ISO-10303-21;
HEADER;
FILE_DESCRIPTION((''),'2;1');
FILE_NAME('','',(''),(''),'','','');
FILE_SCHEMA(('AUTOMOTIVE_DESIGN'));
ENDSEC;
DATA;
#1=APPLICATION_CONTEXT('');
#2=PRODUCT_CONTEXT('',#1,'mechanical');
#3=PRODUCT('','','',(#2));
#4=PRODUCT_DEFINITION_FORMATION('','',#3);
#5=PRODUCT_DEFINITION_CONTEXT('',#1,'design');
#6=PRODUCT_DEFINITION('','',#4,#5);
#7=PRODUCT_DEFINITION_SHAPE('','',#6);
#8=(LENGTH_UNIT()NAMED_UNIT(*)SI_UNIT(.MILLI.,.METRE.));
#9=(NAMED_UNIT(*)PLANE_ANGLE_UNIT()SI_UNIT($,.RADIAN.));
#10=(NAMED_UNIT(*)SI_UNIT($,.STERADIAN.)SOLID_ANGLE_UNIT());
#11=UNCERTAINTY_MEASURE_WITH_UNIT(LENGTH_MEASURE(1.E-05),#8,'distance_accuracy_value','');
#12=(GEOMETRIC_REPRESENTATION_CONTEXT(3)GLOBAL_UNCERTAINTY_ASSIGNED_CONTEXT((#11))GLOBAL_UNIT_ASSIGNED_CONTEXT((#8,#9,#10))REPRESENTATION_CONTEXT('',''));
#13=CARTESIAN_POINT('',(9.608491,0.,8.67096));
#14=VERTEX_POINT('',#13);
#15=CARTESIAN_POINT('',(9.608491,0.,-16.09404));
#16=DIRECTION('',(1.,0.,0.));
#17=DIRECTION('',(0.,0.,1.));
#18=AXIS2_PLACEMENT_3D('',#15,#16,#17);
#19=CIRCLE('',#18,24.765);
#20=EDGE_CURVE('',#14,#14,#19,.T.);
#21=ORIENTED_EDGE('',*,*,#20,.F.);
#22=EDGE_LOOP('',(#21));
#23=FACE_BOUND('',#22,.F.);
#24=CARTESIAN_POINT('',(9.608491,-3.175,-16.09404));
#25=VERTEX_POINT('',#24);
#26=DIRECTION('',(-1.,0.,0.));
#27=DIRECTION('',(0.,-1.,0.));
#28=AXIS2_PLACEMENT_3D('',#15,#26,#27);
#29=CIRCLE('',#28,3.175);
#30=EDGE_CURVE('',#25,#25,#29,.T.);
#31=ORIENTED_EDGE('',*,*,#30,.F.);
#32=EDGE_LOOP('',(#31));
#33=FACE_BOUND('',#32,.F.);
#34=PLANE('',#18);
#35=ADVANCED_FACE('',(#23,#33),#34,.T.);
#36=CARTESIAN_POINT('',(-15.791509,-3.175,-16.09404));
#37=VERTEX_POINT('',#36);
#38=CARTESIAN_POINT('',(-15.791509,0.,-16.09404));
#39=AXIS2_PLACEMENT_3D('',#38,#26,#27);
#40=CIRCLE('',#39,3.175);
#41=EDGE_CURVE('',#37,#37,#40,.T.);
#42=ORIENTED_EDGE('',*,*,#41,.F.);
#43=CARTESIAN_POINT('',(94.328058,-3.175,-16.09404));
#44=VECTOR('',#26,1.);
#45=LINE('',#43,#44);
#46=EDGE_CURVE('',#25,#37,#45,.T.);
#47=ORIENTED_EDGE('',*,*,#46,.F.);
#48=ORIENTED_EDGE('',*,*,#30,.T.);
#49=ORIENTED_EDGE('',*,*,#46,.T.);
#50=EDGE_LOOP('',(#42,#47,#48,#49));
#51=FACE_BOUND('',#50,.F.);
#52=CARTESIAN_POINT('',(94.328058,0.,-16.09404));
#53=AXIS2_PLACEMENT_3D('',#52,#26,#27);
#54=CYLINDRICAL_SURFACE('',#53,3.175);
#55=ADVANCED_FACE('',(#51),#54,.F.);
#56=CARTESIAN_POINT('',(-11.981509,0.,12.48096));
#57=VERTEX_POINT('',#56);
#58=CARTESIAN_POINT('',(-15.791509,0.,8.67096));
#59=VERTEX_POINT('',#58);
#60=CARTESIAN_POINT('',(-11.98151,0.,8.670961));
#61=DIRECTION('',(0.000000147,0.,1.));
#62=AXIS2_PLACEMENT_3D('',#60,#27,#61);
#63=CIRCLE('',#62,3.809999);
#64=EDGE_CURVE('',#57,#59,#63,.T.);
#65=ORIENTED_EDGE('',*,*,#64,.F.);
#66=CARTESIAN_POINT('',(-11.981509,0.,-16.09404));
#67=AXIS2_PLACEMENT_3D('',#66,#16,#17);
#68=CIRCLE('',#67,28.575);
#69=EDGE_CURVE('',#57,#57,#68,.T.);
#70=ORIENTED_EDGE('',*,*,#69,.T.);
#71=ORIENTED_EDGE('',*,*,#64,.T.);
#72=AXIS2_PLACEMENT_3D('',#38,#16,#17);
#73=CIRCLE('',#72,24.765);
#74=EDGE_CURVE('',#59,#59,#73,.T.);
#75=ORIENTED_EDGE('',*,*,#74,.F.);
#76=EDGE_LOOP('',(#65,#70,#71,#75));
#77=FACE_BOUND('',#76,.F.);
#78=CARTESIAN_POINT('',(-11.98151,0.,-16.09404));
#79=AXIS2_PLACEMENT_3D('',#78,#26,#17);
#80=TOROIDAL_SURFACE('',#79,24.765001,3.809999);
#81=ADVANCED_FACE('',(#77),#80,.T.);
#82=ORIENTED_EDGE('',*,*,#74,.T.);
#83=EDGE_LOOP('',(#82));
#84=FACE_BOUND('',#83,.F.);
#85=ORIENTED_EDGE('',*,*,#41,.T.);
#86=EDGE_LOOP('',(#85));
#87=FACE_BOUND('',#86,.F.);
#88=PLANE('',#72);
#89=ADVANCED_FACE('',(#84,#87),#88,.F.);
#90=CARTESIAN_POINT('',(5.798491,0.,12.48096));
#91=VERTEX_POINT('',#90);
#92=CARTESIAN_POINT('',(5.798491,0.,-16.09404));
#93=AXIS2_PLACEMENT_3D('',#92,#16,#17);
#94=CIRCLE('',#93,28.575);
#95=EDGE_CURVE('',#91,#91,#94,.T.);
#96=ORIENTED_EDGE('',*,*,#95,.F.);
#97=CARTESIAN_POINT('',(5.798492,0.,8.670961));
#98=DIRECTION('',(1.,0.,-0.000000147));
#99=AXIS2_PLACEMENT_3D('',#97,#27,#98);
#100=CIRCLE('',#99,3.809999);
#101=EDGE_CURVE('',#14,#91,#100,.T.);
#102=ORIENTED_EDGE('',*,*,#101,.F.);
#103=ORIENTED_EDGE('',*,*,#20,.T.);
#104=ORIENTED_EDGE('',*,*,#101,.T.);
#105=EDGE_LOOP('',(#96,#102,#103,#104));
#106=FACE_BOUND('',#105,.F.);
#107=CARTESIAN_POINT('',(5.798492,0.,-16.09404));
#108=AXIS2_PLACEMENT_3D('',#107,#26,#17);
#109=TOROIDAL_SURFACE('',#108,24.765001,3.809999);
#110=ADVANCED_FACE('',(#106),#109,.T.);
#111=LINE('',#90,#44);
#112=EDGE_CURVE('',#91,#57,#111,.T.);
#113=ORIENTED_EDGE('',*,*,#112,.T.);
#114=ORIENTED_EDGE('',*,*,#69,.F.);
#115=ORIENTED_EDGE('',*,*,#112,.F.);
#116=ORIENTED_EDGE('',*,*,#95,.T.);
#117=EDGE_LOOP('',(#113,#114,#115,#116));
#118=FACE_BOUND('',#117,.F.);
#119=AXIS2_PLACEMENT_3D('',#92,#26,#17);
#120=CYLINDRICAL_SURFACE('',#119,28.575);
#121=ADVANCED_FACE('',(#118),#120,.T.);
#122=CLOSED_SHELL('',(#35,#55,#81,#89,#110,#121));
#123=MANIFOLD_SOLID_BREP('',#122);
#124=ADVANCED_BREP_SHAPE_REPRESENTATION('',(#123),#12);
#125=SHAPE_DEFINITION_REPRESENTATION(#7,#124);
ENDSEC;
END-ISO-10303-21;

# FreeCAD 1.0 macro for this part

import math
import FreeCAD as App
import Part
import Sketcher
Q = App.Units.Quantity

doc = App.newDocument("Part")
body = doc.addObject("PartDesign::Body", "Body")

# Sketch on XZ plane
sketch1 = doc.addObject("Sketcher::SketchObject", "Sketch")
body.addObject(sketch1)
sketch1.AttachmentSupport = (doc.XZ_Plane, [""])
sketch1.MapMode = "FlatFace"
sketch1.addGeometry([
    Part.LineSegment(App.Vector(5.8, 12.5, 0), App.Vector(-12, 12.5, 0)),  # 0
    Part.ArcOfCircle(Part.Circle(App.Vector(-12, 8.7, 0), App.Vector(0, 0, 1), 3.8), math.radians(90), math.radians(180)),  # 1
    Part.LineSegment(App.Vector(-15.8, 8.7, 0), App.Vector(-15.8, -16.1, 0)),  # 2
    Part.LineSegment(App.Vector(-15.8, -16.1, 0), App.Vector(9.6, -16.1, 0)),  # 3
    Part.LineSegment(App.Vector(9.6, -16.1, 0), App.Vector(9.6, 8.7, 0)),  # 4
    Part.ArcOfCircle(Part.Circle(App.Vector(5.8, 8.7, 0), App.Vector(0, 0, 1), 3.8), math.radians(0), math.radians(90)),  # 5
], False)
sketch1.addGeometry(Part.LineSegment(App.Vector(-15.8, -16.1, 0), App.Vector(9.6, -16.1, 0)), True)  # axis
sketch1.addConstraint([
    Sketcher.Constraint("Tangent", 0, 2, 1, 1),
    Sketcher.Constraint("Tangent", 1, 2, 2, 1),
    Sketcher.Constraint("Coincident", 2, 2, 3, 1),
    Sketcher.Constraint("Coincident", 3, 2, 4, 1),
    Sketcher.Constraint("Tangent", 4, 2, 5, 1),
    Sketcher.Constraint("Tangent", 5, 2, 0, 1),
    Sketcher.Constraint("Horizontal", 0),
    Sketcher.Constraint("Vertical", 2),
    Sketcher.Constraint("Horizontal", 3),
    Sketcher.Constraint("Vertical", 4),
    Sketcher.Constraint("Horizontal", 6),
    Sketcher.Constraint("Coincident", 6, 1, 2, 2),
    Sketcher.Constraint("Equal", 1, 5),
    Sketcher.Constraint("Vertical", 4, 2, 6, 2),
    Sketcher.Constraint("DistanceX", 3, 1, 3, 2, Q("1 in")),
    Sketcher.Constraint("Radius", 1, Q("0.15 in")),
    Sketcher.Constraint("DistanceY", 2, 2, 2, 1, Q("0.975 in")),
    Sketcher.Constraint("DistanceX", 1, 3, -1, 1, Q("11.98151 mm")),
    Sketcher.Constraint("DistanceY", -1, 1, 1, 3, Q("8.670961 mm")),
])
revolution = doc.addObject("PartDesign::Revolution", "Revolution")
body.addObject(revolution)
revolution.Profile = sketch1
revolution.ReferenceAxis = (sketch1, ["Axis0"])
revolution.Angle = 360

# Sketch on YZ plane
sketch2 = doc.addObject("Sketcher::SketchObject", "Sketch001")
body.addObject(sketch2)
sketch2.AttachmentSupport = (doc.YZ_Plane, [""])
sketch2.MapMode = "FlatFace"
sketch2.AttachmentOffset = App.Placement(App.Vector(0, 0, 9.608491), App.Rotation())
sketch2.addGeometry(Part.Circle(App.Vector(0, -16.1, 0), App.Vector(0, 0, 1), 3.2), False)
sketch2.addConstraint([
    Sketcher.Constraint("PointOnObject", 0, 3, -2),
    Sketcher.Constraint("Diameter", 0, Q("0.25 in")),
    Sketcher.Constraint("DistanceY", 0, 3, -1, 1, Q("16.09404 mm")),
])
doc.recompute()
hole = doc.addObject("PartDesign::Hole", "Hole")
body.addObject(hole)
hole.Profile = sketch2
hole.ThreadType = "None"
hole.Diameter = Q("0.25 in")
hole.DepthType = "ThroughAll"

doc.recompute()
